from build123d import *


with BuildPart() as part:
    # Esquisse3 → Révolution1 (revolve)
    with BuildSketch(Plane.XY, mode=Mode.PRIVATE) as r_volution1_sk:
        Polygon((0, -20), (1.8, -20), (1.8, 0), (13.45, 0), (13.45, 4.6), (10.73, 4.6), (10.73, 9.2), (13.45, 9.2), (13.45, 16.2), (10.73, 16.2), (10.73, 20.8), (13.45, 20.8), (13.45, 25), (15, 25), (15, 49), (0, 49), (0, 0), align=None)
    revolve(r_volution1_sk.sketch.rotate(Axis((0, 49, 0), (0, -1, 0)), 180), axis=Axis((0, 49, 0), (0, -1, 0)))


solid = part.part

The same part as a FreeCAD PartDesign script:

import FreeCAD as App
import Part
import Sketcher


def add_polygon(sketch, points):
    """Adds a closed chain of lines whose ends are joined by coincident constraints."""
    first, n = sketch.GeometryCount, len(points)
    for a, b in zip(points, points[1:] + points[:1]):
        sketch.addGeometry(Part.LineSegment(App.Vector(*a, 0), App.Vector(*b, 0)), False)
    for i in range(n):
        sketch.addConstraint(Sketcher.Constraint("Coincident", first + i, 2, first + (i + 1) % n, 1))

doc = App.newDocument("Part")
params = doc.addObject("Spreadsheet::Sheet", "Params")
for row, (alias, value) in enumerate([
    ("sketch1_width", "15 mm"),
    ("sketch1_height", "20 mm"),
    ("sketch1_height2", "7 mm"),
    ("sketch1_height3", "24 mm"),
    ("sketch1_height4", "69 mm"),
    ("revolution_angle", "360 deg"),
], start=1):
    params.set(f"A{row}", alias)
    params.set(f"B{row}", "=" + value)
    params.setAlias(f"B{row}", alias)

body = doc.addObject("PartDesign::Body", "Body")

# Sketch on XY plane
sketch1 = doc.addObject("Sketcher::SketchObject", "Sketch")
body.addObject(sketch1)
sketch1.AttachmentSupport = (doc.XY_Plane, [""])
sketch1.MapMode = "FlatFace"
add_polygon(sketch1, [(0, -20), (1.8, -20), (1.8, 0), (13.4, 0), (13.4, 4.6), (10.7, 4.6), (10.7, 9.2), (13.4, 9.2), (13.4, 16.2), (10.7, 16.2), (10.7, 20.8), (13.4, 20.8), (13.4, 25), (15, 25), (15, 49), (0, 49)])  # lines 0-15
sketch1.addConstraint(Sketcher.Constraint("Horizontal", 0))
sketch1.addConstraint(Sketcher.Constraint("Vertical", 1))
sketch1.addConstraint(Sketcher.Constraint("Horizontal", 2))
sketch1.addConstraint(Sketcher.Constraint("Vertical", 3))
sketch1.addConstraint(Sketcher.Constraint("Horizontal", 4))
sketch1.addConstraint(Sketcher.Constraint("Vertical", 5))
sketch1.addConstraint(Sketcher.Constraint("Horizontal", 6))
sketch1.addConstraint(Sketcher.Constraint("Vertical", 7))
sketch1.addConstraint(Sketcher.Constraint("Horizontal", 8))
sketch1.addConstraint(Sketcher.Constraint("Vertical", 9))
sketch1.addConstraint(Sketcher.Constraint("Horizontal", 10))
sketch1.addConstraint(Sketcher.Constraint("Vertical", 11))
sketch1.addConstraint(Sketcher.Constraint("Horizontal", 12))
sketch1.addConstraint(Sketcher.Constraint("Vertical", 13))
sketch1.addConstraint(Sketcher.Constraint("Horizontal", 14))
sketch1.addConstraint(Sketcher.Constraint("Vertical", 15))
sketch1.addConstraint(Sketcher.Constraint("PointOnObject", 1, 2, -1))
sketch1.addConstraint(Sketcher.Constraint("PointOnObject", 14, 2, -2))
sketch1.addConstraint(Sketcher.Constraint("Vertical", 3, 2, 6, 2))
sketch1.addConstraint(Sketcher.Constraint("Vertical", 5, 2, 8, 2))
sketch1.addConstraint(Sketcher.Constraint("Vertical", 7, 2, 10, 2))
sketch1.addConstraint(Sketcher.Constraint("Equal", 3, 5))
sketch1.addConstraint(Sketcher.Constraint("Equal", 5, 9))
sketch1.addConstraint(Sketcher.Constraint("DistanceX", 14, 2, 14, 1, 15.0))
sketch1.addConstraint(Sketcher.Constraint("DistanceY", 1, 1, 1, 2, 20.0))
sketch1.addConstraint(Sketcher.Constraint("DistanceY", 7, 1, 7, 2, 7.0))
sketch1.addConstraint(Sketcher.Constraint("DistanceY", 13, 1, 13, 2, 24.0))
sketch1.addConstraint(Sketcher.Constraint("DistanceY", 15, 2, 15, 1, 69.0))
sketch1.addConstraint(Sketcher.Constraint("DistanceX", 0, 1, 0, 2, 1.8))
sketch1.addConstraint(Sketcher.Constraint("DistanceY", 3, 1, 3, 2, 4.6))
sketch1.addConstraint(Sketcher.Constraint("DistanceX", 2, 1, 2, 2, 11.65))
sketch1.addConstraint(Sketcher.Constraint("DistanceX", 4, 2, 4, 1, 2.72))
sketch1.setExpression("Constraints[39]", "Params.sketch1_width")
sketch1.setExpression("Constraints[40]", "Params.sketch1_height")
sketch1.setExpression("Constraints[41]", "Params.sketch1_height2")
sketch1.setExpression("Constraints[42]", "Params.sketch1_height3")
sketch1.setExpression("Constraints[43]", "Params.sketch1_height4")
revolution = doc.addObject("PartDesign::Revolution", "Revolution")
body.addObject(revolution)
revolution.Profile = sketch1
revolution.ReferenceAxis = (sketch1, ["V_Axis"])
revolution.setExpression("Angle", "Params.revolution_angle")

doc.recompute()
